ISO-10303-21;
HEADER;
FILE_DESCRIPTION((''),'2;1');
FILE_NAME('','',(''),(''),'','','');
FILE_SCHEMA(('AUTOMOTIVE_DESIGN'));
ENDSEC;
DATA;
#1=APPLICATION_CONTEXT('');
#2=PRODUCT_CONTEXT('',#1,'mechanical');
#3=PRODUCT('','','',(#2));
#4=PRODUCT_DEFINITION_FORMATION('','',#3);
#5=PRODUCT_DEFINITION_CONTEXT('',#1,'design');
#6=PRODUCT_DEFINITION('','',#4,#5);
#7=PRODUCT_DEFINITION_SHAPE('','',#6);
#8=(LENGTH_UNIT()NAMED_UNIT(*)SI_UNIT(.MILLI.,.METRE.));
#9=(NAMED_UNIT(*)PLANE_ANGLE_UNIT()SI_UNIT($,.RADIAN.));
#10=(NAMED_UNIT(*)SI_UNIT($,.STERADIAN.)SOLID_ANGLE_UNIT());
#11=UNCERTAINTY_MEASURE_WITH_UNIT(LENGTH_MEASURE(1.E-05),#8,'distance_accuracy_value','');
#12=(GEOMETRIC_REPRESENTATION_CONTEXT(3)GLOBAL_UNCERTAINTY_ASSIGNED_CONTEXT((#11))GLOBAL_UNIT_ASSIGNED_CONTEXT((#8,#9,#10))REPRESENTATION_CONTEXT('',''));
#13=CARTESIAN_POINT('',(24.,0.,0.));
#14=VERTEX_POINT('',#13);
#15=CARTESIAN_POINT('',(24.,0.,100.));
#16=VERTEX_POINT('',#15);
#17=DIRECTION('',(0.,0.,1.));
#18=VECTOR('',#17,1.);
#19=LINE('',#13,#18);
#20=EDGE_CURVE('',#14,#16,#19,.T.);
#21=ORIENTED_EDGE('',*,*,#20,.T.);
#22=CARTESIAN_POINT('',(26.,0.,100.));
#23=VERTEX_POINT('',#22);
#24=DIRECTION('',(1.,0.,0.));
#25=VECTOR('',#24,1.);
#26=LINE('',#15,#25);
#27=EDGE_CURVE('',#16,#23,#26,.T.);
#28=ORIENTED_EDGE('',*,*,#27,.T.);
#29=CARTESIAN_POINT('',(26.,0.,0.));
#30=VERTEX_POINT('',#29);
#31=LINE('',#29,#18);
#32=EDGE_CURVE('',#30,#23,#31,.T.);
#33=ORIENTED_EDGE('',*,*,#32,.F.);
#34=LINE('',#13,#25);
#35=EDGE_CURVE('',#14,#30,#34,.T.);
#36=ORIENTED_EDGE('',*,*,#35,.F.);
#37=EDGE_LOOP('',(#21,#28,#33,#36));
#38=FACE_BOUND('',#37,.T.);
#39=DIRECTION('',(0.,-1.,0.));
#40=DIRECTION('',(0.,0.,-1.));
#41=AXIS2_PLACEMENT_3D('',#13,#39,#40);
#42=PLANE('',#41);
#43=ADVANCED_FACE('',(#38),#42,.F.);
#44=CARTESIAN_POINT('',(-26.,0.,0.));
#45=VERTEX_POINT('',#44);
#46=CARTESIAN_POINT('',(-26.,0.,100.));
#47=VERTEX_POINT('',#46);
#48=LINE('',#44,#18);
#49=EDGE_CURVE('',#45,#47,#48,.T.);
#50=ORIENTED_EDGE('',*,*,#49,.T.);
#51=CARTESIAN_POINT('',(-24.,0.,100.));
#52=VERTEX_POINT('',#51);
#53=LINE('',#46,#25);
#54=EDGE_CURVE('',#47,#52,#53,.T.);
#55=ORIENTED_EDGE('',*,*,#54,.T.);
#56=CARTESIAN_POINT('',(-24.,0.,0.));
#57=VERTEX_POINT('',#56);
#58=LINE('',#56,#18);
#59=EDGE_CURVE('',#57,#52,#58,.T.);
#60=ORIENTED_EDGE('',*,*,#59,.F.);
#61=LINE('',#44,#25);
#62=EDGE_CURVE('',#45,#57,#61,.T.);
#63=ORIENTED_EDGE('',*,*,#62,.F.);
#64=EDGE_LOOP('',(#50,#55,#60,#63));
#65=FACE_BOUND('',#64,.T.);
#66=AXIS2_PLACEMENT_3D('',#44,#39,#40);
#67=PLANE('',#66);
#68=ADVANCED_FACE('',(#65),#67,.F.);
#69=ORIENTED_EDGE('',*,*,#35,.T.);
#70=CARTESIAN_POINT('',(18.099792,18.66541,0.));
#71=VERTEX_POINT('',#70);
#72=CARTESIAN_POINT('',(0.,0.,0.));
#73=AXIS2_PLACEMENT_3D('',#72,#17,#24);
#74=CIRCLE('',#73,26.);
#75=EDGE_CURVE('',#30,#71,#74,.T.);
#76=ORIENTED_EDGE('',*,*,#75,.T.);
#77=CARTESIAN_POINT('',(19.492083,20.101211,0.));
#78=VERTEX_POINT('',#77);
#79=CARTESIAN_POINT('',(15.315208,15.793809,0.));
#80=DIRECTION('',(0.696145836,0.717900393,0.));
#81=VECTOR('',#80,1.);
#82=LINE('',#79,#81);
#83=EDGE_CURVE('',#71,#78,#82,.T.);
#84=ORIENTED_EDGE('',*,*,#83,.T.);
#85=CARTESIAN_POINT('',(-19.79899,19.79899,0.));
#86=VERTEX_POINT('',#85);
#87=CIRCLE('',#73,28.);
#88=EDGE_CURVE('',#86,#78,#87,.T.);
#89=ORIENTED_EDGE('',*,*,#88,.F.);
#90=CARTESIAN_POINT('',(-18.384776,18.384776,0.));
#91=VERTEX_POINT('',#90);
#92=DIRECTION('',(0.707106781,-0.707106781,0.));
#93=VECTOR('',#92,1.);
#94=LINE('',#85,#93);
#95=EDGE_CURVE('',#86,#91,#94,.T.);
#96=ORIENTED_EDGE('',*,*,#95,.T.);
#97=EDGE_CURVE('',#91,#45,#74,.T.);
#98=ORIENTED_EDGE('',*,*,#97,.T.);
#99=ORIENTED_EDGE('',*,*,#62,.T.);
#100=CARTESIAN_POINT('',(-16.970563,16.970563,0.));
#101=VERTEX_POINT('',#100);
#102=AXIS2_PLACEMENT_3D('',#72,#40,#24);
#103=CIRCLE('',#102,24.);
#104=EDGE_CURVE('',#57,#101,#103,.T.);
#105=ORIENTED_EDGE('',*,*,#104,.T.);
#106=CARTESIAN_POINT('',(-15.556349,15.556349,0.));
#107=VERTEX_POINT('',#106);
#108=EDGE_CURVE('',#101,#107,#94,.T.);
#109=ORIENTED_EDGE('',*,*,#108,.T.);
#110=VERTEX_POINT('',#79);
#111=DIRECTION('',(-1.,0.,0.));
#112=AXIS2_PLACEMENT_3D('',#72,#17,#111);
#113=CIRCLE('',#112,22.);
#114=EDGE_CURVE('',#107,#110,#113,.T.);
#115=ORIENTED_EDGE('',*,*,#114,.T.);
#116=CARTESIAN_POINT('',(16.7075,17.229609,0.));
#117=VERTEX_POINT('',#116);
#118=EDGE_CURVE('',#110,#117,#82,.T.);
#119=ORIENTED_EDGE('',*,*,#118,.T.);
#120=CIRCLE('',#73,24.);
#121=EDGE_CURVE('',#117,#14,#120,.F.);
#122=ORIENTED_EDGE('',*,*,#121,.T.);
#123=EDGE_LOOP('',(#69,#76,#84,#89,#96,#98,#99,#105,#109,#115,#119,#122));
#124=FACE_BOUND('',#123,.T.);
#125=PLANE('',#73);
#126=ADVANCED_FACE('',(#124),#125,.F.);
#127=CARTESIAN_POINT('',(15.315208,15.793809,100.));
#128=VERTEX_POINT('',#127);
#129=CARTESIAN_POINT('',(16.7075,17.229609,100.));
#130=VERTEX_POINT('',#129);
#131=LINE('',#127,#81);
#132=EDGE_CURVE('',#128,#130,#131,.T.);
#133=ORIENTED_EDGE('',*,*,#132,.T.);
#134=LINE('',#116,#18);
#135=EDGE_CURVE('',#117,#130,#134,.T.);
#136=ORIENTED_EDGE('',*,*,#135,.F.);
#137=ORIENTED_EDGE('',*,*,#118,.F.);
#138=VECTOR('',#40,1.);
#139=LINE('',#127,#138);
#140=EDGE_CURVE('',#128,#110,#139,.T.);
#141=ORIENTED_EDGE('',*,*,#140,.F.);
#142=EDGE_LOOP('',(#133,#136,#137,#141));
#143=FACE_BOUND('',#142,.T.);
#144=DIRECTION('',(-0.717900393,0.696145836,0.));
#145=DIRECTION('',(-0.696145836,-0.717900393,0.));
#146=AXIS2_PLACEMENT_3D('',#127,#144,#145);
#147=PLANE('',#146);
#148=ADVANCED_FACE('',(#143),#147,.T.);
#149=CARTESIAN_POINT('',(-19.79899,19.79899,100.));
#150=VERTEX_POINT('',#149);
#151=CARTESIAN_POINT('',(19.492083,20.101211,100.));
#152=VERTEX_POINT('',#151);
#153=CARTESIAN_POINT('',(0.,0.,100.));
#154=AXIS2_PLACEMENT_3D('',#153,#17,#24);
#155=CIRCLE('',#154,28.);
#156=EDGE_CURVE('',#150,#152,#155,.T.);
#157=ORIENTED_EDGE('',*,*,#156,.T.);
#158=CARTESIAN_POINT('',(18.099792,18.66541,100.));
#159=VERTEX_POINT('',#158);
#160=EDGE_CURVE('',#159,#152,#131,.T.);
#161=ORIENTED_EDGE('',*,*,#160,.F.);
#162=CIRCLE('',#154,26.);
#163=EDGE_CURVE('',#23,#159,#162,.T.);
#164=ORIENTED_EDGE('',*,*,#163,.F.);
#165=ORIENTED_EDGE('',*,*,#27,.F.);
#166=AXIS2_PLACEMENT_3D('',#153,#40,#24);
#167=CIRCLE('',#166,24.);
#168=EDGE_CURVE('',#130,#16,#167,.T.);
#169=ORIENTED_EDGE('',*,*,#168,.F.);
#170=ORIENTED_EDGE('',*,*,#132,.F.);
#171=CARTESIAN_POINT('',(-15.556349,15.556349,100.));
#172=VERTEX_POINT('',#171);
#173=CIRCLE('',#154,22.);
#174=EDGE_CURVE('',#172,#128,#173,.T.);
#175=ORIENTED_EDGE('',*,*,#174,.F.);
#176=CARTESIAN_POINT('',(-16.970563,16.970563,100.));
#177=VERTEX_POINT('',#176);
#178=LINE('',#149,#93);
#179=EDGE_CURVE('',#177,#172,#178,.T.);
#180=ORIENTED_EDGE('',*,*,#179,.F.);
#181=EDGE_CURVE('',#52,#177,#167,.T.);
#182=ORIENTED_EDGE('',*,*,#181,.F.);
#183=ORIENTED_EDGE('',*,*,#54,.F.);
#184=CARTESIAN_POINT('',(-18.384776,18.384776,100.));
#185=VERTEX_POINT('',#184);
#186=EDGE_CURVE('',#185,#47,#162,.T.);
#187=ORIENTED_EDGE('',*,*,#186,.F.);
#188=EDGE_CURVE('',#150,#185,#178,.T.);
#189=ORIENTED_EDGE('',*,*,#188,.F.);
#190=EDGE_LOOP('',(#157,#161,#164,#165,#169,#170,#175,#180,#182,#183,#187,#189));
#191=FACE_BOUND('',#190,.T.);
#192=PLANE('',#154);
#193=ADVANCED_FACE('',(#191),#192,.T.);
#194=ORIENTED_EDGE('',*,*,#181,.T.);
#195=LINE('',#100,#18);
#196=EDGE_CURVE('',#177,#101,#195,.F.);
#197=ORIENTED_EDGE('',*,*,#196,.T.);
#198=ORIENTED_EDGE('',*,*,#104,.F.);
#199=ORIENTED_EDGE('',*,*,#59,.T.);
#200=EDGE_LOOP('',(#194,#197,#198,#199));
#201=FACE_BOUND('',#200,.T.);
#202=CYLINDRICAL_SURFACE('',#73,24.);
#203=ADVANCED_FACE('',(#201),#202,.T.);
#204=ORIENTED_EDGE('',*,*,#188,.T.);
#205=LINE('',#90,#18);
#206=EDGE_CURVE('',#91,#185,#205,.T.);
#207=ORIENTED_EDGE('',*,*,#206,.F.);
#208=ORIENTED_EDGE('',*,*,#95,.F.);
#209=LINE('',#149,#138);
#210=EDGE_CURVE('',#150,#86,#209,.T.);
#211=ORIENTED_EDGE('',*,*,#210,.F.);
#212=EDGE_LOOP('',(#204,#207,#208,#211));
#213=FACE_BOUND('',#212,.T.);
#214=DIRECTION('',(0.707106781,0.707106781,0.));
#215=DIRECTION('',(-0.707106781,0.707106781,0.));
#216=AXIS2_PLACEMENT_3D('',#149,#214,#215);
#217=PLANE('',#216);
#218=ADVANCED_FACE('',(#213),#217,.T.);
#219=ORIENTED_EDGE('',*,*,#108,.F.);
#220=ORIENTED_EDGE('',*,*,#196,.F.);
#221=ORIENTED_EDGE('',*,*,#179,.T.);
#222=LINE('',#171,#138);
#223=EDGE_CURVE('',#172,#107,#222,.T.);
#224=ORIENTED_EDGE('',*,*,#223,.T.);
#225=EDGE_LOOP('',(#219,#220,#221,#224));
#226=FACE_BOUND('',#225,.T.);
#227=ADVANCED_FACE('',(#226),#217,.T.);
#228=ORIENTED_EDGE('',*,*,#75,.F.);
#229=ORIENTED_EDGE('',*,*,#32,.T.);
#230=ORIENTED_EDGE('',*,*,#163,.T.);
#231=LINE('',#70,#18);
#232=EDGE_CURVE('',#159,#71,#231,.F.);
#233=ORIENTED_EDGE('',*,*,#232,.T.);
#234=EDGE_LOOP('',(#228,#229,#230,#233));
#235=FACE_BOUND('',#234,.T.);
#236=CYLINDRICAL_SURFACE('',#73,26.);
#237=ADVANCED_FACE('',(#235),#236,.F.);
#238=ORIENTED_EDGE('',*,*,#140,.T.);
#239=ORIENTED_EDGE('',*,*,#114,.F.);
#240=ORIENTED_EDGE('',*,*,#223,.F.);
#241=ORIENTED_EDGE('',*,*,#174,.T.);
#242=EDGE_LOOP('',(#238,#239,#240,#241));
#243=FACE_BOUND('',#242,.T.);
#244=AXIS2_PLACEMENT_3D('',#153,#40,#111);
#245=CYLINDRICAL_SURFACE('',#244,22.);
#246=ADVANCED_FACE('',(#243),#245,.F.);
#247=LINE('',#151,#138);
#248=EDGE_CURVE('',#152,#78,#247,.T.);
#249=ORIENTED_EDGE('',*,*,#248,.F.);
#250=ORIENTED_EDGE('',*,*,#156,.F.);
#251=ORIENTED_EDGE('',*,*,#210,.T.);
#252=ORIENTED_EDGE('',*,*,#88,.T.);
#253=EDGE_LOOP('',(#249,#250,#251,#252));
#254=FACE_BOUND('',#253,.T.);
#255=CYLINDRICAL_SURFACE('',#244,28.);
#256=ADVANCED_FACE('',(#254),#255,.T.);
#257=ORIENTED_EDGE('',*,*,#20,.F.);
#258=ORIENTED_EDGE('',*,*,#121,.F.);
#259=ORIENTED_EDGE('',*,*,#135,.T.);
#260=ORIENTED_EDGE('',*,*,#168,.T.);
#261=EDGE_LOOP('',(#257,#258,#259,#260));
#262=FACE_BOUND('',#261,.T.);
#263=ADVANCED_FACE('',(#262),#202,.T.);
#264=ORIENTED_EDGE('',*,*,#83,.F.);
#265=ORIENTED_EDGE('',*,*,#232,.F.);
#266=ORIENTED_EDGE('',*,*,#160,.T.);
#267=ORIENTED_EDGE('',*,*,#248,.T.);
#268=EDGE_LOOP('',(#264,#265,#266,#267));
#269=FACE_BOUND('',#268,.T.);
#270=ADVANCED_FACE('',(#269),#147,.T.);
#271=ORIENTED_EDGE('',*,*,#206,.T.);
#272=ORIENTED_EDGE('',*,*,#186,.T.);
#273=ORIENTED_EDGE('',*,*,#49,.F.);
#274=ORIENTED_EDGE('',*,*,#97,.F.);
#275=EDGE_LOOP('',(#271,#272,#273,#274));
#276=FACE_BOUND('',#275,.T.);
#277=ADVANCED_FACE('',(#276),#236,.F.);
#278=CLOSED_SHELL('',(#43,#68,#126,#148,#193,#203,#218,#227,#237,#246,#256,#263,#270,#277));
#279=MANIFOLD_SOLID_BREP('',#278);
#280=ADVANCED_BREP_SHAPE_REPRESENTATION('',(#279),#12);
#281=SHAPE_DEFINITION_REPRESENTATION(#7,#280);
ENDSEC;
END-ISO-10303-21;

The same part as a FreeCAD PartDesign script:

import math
import FreeCAD as App
import Part
import Sketcher
Q = App.Units.Quantity

doc = App.newDocument("Part")
body = doc.addObject("PartDesign::Body", "Body")

# Sketch on XY plane
sketch1 = body.newObject("Sketcher::SketchObject", "Sketch")
sketch1.AttachmentSupport = (doc.getObject("XY_Plane"), [""])
sketch1.MapMode = "FlatFace"
sketch1.addGeometry(Part.ArcOfCircle(Part.Circle(App.Vector(0, 0, 0), App.Vector(0, 0, 1), 22), math.radians(180), math.radians(406)), False)
sketch1.addGeometry(Part.ArcOfCircle(Part.Circle(App.Vector(0, 0, 0), App.Vector(0, 0, 1), 22), math.radians(135), math.radians(180)), False)
sketch1.addGeometry(Part.LineSegment(App.Vector(-16, 16, 0), App.Vector(-20, 20, 0)), False)
sketch1.addGeometry(Part.ArcOfCircle(Part.Circle(App.Vector(0, 0, 0), App.Vector(0, 0, 1), 28), math.radians(135), math.radians(180)), False)
sketch1.addGeometry(Part.ArcOfCircle(Part.Circle(App.Vector(0, 0, 0), App.Vector(0, 0, 1), 28), math.radians(-180), math.radians(1)), False)
sketch1.addGeometry(Part.ArcOfCircle(Part.Circle(App.Vector(0, 0, 0), App.Vector(0, 0, 1), 28), math.radians(1), math.radians(46)), False)
sketch1.addGeometry(Part.LineSegment(App.Vector(19, 20, 0), App.Vector(15, 16, 0)), False)
sketch1.addConstraint(Sketcher.Constraint("Tangent", 0, 1, 1, 2))
sketch1.addConstraint(Sketcher.Constraint("Coincident", 1, 1, 2, 1))
sketch1.addConstraint(Sketcher.Constraint("Coincident", 2, 2, 3, 1))
sketch1.addConstraint(Sketcher.Constraint("Tangent", 3, 2, 4, 1))
sketch1.addConstraint(Sketcher.Constraint("Tangent", 4, 2, 5, 1))
sketch1.addConstraint(Sketcher.Constraint("Coincident", 5, 2, 6, 1))
sketch1.addConstraint(Sketcher.Constraint("Coincident", 6, 2, 0, 2))
sketch1.addConstraint(Sketcher.Constraint("Coincident", 0, 3, -1, 1))
sketch1.addConstraint(Sketcher.Constraint("Coincident", 3, 3, -1, 1))
sketch1.addConstraint(Sketcher.Constraint("Coincident", 5, 3, -1, 1))
sketch1.addConstraint(Sketcher.Constraint("Equal", 0, 1))
sketch1.addConstraint(Sketcher.Constraint("PointOnObject", 0, 1, -1))
sketch1.addConstraint(Sketcher.Constraint("PointOnObject", 3, 2, -1))
sketch1.addConstraint(Sketcher.Constraint("Radius", 0, Q("22 mm")))
sketch1.addConstraint(Sketcher.Constraint("Radius", 3, Q("28 mm")))
sketch1.addConstraint(Sketcher.Constraint("Angle", 2, Q("135 deg")))
sketch1.addConstraint(Sketcher.Constraint("DistanceX", 1, 1, -1, 1, Q("15.556349 mm")))
sketch1.addConstraint(Sketcher.Constraint("DistanceY", -1, 1, 4, 2, Q("0.430718 mm")))
sketch1.addConstraint(Sketcher.Constraint("DistanceY", -1, 1, 5, 2, Q("20.101211 mm")))
sketch1.addConstraint(Sketcher.Constraint("DistanceX", -1, 1, 6, 2, Q("15.315208 mm")))
pad1 = body.newObject("PartDesign::Pad", "Pad")
pad1.Profile = sketch1
pad1.Length = 100

# Sketch on XY plane
sketch2 = body.newObject("Sketcher::SketchObject", "Sketch001")
sketch2.AttachmentSupport = (doc.getObject("XY_Plane"), [""])
sketch2.MapMode = "FlatFace"
sketch2.AttachmentOffset = App.Placement(App.Vector(0, 0, 100), App.Rotation())
sketch2.addGeometry(Part.LineSegment(App.Vector(-26, 0, 0), App.Vector(-24, 0, 0)), False)
sketch2.addGeometry(Part.ArcOfCircle(Part.Circle(App.Vector(0, 0, 0), App.Vector(0, 0, 1), 24), math.radians(0), math.radians(180)), False)
sketch2.addGeometry(Part.LineSegment(App.Vector(24, 0, 0), App.Vector(26, 0, 0)), False)
sketch2.addGeometry(Part.ArcOfCircle(Part.Circle(App.Vector(0, 0, 0), App.Vector(0, 0, 1), 26), math.radians(0), math.radians(180)), False)
sketch2.addConstraint(Sketcher.Constraint("Coincident", 0, 2, 1, 2))
sketch2.addConstraint(Sketcher.Constraint("Coincident", 1, 1, 2, 1))
sketch2.addConstraint(Sketcher.Constraint("Coincident", 2, 2, 3, 1))
sketch2.addConstraint(Sketcher.Constraint("Coincident", 3, 2, 0, 1))
sketch2.addConstraint(Sketcher.Constraint("Horizontal", 0))
sketch2.addConstraint(Sketcher.Constraint("Horizontal", 2))
sketch2.addConstraint(Sketcher.Constraint("Coincident", 1, 3, -1, 1))
sketch2.addConstraint(Sketcher.Constraint("Coincident", 3, 3, -1, 1))
sketch2.addConstraint(Sketcher.Constraint("PointOnObject", 0, 2, -1))
sketch2.addConstraint(Sketcher.Constraint("PointOnObject", 1, 1, -1))
sketch2.addConstraint(Sketcher.Constraint("Radius", 1, Q("24 mm")))
sketch2.addConstraint(Sketcher.Constraint("Radius", 3, Q("26 mm")))
pocket1 = body.newObject("PartDesign::Pocket", "Pocket")
pocket1.Profile = sketch2
pocket1.Length = 100

doc.recompute()
